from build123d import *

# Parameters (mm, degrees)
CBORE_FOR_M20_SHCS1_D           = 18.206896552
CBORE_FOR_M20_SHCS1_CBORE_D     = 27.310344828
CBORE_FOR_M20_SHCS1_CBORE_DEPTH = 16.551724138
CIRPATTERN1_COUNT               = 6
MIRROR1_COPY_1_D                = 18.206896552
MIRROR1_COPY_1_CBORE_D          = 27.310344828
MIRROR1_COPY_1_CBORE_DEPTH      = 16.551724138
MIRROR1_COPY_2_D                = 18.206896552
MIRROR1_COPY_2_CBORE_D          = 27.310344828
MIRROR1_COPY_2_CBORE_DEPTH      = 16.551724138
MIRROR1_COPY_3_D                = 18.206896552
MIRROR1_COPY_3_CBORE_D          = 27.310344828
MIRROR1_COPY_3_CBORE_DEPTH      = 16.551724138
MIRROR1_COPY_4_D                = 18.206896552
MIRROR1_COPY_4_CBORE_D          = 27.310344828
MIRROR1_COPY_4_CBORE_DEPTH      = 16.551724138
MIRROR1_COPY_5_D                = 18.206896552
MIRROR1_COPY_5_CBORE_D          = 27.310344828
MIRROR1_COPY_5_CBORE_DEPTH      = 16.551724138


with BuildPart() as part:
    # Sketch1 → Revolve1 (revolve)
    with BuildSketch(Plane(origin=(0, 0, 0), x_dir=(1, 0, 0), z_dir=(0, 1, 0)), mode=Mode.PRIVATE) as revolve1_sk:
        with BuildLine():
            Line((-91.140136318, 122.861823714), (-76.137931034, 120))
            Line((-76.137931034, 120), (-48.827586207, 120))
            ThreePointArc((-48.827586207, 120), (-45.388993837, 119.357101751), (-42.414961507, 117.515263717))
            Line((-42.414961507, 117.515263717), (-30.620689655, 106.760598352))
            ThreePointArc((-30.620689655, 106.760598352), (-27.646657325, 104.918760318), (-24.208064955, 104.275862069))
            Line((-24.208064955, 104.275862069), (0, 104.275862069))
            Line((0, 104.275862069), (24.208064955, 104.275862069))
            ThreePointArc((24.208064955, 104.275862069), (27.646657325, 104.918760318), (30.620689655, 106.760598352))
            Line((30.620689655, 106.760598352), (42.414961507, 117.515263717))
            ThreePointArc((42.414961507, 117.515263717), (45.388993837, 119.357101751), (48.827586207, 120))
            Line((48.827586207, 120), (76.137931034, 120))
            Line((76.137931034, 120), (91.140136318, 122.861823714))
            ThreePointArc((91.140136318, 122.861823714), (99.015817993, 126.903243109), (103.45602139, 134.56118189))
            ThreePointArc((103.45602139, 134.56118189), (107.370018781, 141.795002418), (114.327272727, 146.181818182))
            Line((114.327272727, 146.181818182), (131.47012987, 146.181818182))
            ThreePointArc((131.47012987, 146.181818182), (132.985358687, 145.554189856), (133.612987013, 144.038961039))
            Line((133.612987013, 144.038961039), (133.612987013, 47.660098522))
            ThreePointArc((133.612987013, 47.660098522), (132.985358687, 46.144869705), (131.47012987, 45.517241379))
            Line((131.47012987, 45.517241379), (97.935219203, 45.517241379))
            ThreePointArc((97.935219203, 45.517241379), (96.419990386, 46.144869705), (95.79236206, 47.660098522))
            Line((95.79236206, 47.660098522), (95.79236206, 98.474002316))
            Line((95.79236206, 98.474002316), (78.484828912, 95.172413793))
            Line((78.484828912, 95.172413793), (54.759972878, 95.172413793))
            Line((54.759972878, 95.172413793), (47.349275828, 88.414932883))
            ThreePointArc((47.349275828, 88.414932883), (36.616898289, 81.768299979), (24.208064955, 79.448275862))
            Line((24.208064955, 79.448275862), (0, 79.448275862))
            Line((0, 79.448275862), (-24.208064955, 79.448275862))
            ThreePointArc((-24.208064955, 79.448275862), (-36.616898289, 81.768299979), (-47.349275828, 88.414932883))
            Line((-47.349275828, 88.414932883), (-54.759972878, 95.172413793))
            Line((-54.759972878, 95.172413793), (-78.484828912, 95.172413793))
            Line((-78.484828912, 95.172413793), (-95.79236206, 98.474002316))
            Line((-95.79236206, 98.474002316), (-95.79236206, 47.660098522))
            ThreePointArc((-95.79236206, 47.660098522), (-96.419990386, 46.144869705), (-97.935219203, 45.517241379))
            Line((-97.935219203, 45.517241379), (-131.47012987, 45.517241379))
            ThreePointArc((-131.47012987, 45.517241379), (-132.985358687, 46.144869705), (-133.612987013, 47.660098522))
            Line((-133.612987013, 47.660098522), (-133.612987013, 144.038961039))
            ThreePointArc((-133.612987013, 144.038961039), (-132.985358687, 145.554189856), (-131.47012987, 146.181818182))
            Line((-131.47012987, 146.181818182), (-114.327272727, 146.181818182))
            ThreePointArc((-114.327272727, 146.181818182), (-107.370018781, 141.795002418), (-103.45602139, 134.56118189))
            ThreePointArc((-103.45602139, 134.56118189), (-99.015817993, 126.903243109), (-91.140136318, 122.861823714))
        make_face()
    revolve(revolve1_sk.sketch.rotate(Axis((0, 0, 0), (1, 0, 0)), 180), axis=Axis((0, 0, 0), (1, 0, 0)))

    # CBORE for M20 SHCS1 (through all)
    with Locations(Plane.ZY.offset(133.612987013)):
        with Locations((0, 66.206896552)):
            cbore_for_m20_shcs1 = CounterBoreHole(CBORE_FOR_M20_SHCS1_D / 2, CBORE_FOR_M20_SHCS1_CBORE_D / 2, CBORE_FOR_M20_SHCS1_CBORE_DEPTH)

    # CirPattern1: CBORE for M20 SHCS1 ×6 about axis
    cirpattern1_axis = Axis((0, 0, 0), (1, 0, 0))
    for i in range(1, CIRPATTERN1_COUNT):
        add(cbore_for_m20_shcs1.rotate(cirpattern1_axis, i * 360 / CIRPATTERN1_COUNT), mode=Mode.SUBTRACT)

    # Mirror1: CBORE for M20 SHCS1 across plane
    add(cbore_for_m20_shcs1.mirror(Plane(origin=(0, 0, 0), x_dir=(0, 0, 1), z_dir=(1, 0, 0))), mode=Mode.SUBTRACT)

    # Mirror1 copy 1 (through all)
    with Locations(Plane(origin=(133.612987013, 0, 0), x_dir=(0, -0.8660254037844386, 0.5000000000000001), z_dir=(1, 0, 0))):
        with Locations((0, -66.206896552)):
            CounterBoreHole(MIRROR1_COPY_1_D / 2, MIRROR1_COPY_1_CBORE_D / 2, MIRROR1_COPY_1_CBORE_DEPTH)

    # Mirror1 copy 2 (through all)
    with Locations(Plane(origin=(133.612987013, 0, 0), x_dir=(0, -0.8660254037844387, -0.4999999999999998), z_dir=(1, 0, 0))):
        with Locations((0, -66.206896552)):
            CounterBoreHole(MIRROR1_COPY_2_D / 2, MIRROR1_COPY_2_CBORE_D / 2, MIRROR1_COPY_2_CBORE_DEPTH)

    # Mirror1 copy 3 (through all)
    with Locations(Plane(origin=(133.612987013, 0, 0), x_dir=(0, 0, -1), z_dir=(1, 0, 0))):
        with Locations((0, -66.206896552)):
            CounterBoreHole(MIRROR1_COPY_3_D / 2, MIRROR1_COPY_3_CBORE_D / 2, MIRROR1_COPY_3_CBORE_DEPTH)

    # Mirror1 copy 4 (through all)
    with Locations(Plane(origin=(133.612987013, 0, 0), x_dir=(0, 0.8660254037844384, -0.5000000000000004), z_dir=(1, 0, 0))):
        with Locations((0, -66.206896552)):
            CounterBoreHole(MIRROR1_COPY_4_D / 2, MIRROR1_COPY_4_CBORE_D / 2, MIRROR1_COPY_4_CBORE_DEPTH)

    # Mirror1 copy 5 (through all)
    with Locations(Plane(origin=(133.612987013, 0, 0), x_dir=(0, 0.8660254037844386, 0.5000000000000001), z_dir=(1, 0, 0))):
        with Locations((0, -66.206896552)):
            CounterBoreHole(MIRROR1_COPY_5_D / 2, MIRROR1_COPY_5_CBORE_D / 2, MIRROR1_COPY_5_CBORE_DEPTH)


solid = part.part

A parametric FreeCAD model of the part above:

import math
import FreeCAD as App
import Part
import Sketcher

V = App.Vector
Q = App.Units.Quantity

doc = App.newDocument("Part")
body = doc.addObject("PartDesign::Body", "Body")

# Sketch on XZ plane
sketch1 = body.newObject("Sketcher::SketchObject", "Sketch")
sketch1.AttachmentSupport = (doc.getObject("XZ_Plane"), [""])
sketch1.MapMode = "FlatFace"
sketch1.addGeometry(Part.LineSegment(V(-76.1, -120, 0), V(-91.1, -122.9, 0)), False)
sketch1.addGeometry(Part.ArcOfCircle(Part.Circle(V(-88.2, -138.3, 0), V(0, 0, 1), 15.7), math.radians(101), math.radians(166)), False)
sketch1.addGeometry(Part.ArcOfCircle(Part.Circle(V(-119.2, -130.7, 0), V(0, 0, 1), 16.2), math.radians(-72), math.radians(-14)), False)
sketch1.addGeometry(Part.LineSegment(V(-114.3, -146.2, 0), V(-131.5, -146.2, 0)), False)
sketch1.addGeometry(Part.ArcOfCircle(Part.Circle(V(-131.5, -144, 0), V(0, 0, 1), 2.1), math.radians(180), math.radians(270)), False)
sketch1.addGeometry(Part.LineSegment(V(-133.6, -144, 0), V(-133.6, -47.7, 0)), False)
sketch1.addGeometry(Part.ArcOfCircle(Part.Circle(V(-131.5, -47.7, 0), V(0, 0, 1), 2.1), math.radians(90), math.radians(180)), False)
sketch1.addGeometry(Part.LineSegment(V(-131.5, -45.5, 0), V(-97.9, -45.5, 0)), False)
sketch1.addGeometry(Part.ArcOfCircle(Part.Circle(V(-97.9, -47.7, 0), V(0, 0, 1), 2.1), math.radians(0), math.radians(90)), False)
sketch1.addGeometry(Part.LineSegment(V(-95.8, -47.7, 0), V(-95.8, -98.5, 0)), False)
sketch1.addGeometry(Part.LineSegment(V(-95.8, -98.5, 0), V(-78.5, -95.2, 0)), False)
sketch1.addGeometry(Part.LineSegment(V(-78.5, -95.2, 0), V(-54.8, -95.2, 0)), False)
sketch1.addGeometry(Part.LineSegment(V(-54.8, -95.2, 0), V(-47.3, -88.4, 0)), False)
sketch1.addGeometry(Part.ArcOfCircle(Part.Circle(V(-24.2, -113.8, 0), V(0, 0, 1), 34.3), math.radians(90), math.radians(132)), False)
sketch1.addGeometry(Part.LineSegment(V(-24.2, -79.4, 0), V(24.2, -79.4, 0)), False)
sketch1.addGeometry(Part.ArcOfCircle(Part.Circle(V(24.2, -113.8, 0), V(0, 0, 1), 34.3), math.radians(48), math.radians(90)), False)
sketch1.addGeometry(Part.LineSegment(V(47.3, -88.4, 0), V(54.8, -95.2, 0)), False)
sketch1.addGeometry(Part.LineSegment(V(54.8, -95.2, 0), V(78.5, -95.2, 0)), False)
sketch1.addGeometry(Part.LineSegment(V(78.5, -95.2, 0), V(95.8, -98.5, 0)), False)
sketch1.addGeometry(Part.LineSegment(V(95.8, -98.5, 0), V(95.8, -47.7, 0)), False)
sketch1.addGeometry(Part.ArcOfCircle(Part.Circle(V(97.9, -47.7, 0), V(0, 0, 1), 2.1), math.radians(90), math.radians(180)), False)
sketch1.addGeometry(Part.LineSegment(V(97.9, -45.5, 0), V(131.5, -45.5, 0)), False)
sketch1.addGeometry(Part.ArcOfCircle(Part.Circle(V(131.5, -47.7, 0), V(0, 0, 1), 2.1), math.radians(0), math.radians(90)), False)
sketch1.addGeometry(Part.LineSegment(V(133.6, -47.7, 0), V(133.6, -144, 0)), False)
sketch1.addGeometry(Part.ArcOfCircle(Part.Circle(V(131.5, -144, 0), V(0, 0, 1), 2.1), math.radians(-90), math.radians(0)), False)
sketch1.addGeometry(Part.LineSegment(V(131.5, -146.2, 0), V(114.3, -146.2, 0)), False)
sketch1.addGeometry(Part.ArcOfCircle(Part.Circle(V(119.2, -130.7, 0), V(0, 0, 1), 16.2), math.radians(-166), math.radians(-108)), False)
sketch1.addGeometry(Part.ArcOfCircle(Part.Circle(V(88.2, -138.3, 0), V(0, 0, 1), 15.7), math.radians(14), math.radians(79)), False)
sketch1.addGeometry(Part.LineSegment(V(91.1, -122.9, 0), V(76.1, -120, 0)), False)
sketch1.addGeometry(Part.LineSegment(V(76.1, -120, 0), V(48.8, -120, 0)), False)
sketch1.addGeometry(Part.ArcOfCircle(Part.Circle(V(48.8, -110.5, 0), V(0, 0, 1), 9.5), math.radians(-132), math.radians(-90)), False)
sketch1.addGeometry(Part.LineSegment(V(42.4, -117.5, 0), V(30.6, -106.8, 0)), False)
sketch1.addGeometry(Part.ArcOfCircle(Part.Circle(V(24.2, -113.8, 0), V(0, 0, 1), 9.5), math.radians(48), math.radians(90)), False)
sketch1.addGeometry(Part.LineSegment(V(24.2, -104.3, 0), V(-24.2, -104.3, 0)), False)
sketch1.addGeometry(Part.ArcOfCircle(Part.Circle(V(-24.2, -113.8, 0), V(0, 0, 1), 9.5), math.radians(90), math.radians(132)), False)
sketch1.addGeometry(Part.LineSegment(V(-30.6, -106.8, 0), V(-42.4, -117.5, 0)), False)
sketch1.addGeometry(Part.ArcOfCircle(Part.Circle(V(-48.8, -110.5, 0), V(0, 0, 1), 9.5), math.radians(-90), math.radians(-48)), False)
sketch1.addGeometry(Part.LineSegment(V(-48.8, -120, 0), V(-76.1, -120, 0)), False)
sketch1.addConstraint(Sketcher.Constraint("Tangent", 0, 2, 1, 1))
sketch1.addConstraint(Sketcher.Constraint("Tangent", 1, 2, 2, 2))
sketch1.addConstraint(Sketcher.Constraint("Coincident", 2, 1, 3, 1))
sketch1.addConstraint(Sketcher.Constraint("Tangent", 3, 2, 4, 2))
sketch1.addConstraint(Sketcher.Constraint("Tangent", 4, 1, 5, 1))
sketch1.addConstraint(Sketcher.Constraint("Tangent", 5, 2, 6, 2))
sketch1.addConstraint(Sketcher.Constraint("Tangent", 6, 1, 7, 1))
sketch1.addConstraint(Sketcher.Constraint("Tangent", 7, 2, 8, 2))
sketch1.addConstraint(Sketcher.Constraint("Tangent", 8, 1, 9, 1))
sketch1.addConstraint(Sketcher.Constraint("Coincident", 9, 2, 10, 1))
sketch1.addConstraint(Sketcher.Constraint("Coincident", 10, 2, 11, 1))
sketch1.addConstraint(Sketcher.Constraint("Coincident", 11, 2, 12, 1))
sketch1.addConstraint(Sketcher.Constraint("Tangent", 12, 2, 13, 2))
sketch1.addConstraint(Sketcher.Constraint("Tangent", 13, 1, 14, 1))
sketch1.addConstraint(Sketcher.Constraint("Tangent", 14, 2, 15, 2))
sketch1.addConstraint(Sketcher.Constraint("Tangent", 15, 1, 16, 1))
sketch1.addConstraint(Sketcher.Constraint("Coincident", 16, 2, 17, 1))
sketch1.addConstraint(Sketcher.Constraint("Coincident", 17, 2, 18, 1))
sketch1.addConstraint(Sketcher.Constraint("Coincident", 18, 2, 19, 1))
sketch1.addConstraint(Sketcher.Constraint("Tangent", 19, 2, 20, 2))
sketch1.addConstraint(Sketcher.Constraint("Tangent", 20, 1, 21, 1))
sketch1.addConstraint(Sketcher.Constraint("Tangent", 21, 2, 22, 2))
sketch1.addConstraint(Sketcher.Constraint("Tangent", 22, 1, 23, 1))
sketch1.addConstraint(Sketcher.Constraint("Tangent", 23, 2, 24, 2))
sketch1.addConstraint(Sketcher.Constraint("Tangent", 24, 1, 25, 1))
sketch1.addConstraint(Sketcher.Constraint("Coincident", 25, 2, 26, 2))
sketch1.addConstraint(Sketcher.Constraint("Tangent", 26, 1, 27, 1))
sketch1.addConstraint(Sketcher.Constraint("Tangent", 27, 2, 28, 1))
sketch1.addConstraint(Sketcher.Constraint("Coincident", 28, 2, 29, 1))
sketch1.addConstraint(Sketcher.Constraint("Tangent", 29, 2, 30, 2))
sketch1.addConstraint(Sketcher.Constraint("Tangent", 30, 1, 31, 1))
sketch1.addConstraint(Sketcher.Constraint("Tangent", 31, 2, 32, 1))
sketch1.addConstraint(Sketcher.Constraint("Tangent", 32, 2, 33, 1))
sketch1.addConstraint(Sketcher.Constraint("Tangent", 33, 2, 34, 1))
sketch1.addConstraint(Sketcher.Constraint("Tangent", 34, 2, 35, 1))
sketch1.addConstraint(Sketcher.Constraint("Tangent", 35, 2, 36, 2))
sketch1.addConstraint(Sketcher.Constraint("Tangent", 36, 1, 37, 1))
sketch1.addConstraint(Sketcher.Constraint("Coincident", 37, 2, 0, 1))
sketch1.addConstraint(Sketcher.Constraint("Horizontal", 3))
sketch1.addConstraint(Sketcher.Constraint("Vertical", 5))
sketch1.addConstraint(Sketcher.Constraint("Horizontal", 7))
sketch1.addConstraint(Sketcher.Constraint("Vertical", 9))
sketch1.addConstraint(Sketcher.Constraint("Horizontal", 11))
sketch1.addConstraint(Sketcher.Constraint("Horizontal", 14))
sketch1.addConstraint(Sketcher.Constraint("Horizontal", 17))
sketch1.addConstraint(Sketcher.Constraint("Vertical", 19))
sketch1.addConstraint(Sketcher.Constraint("Horizontal", 21))
sketch1.addConstraint(Sketcher.Constraint("Vertical", 23))
sketch1.addConstraint(Sketcher.Constraint("Horizontal", 25))
sketch1.addConstraint(Sketcher.Constraint("Horizontal", 29))
sketch1.addConstraint(Sketcher.Constraint("Horizontal", 33))
sketch1.addConstraint(Sketcher.Constraint("Horizontal", 37))
sketch1.addConstraint(Sketcher.Constraint("Coincident", 32, 3, 15, 3))
sketch1.addConstraint(Sketcher.Constraint("Coincident", 34, 3, 13, 3))
sketch1.addConstraint(Sketcher.Constraint("Equal", 4, 6))
sketch1.addConstraint(Sketcher.Constraint("Equal", 6, 8))
sketch1.addConstraint(Sketcher.Constraint("Equal", 13, 15))
sketch1.addConstraint(Sketcher.Constraint("Equal", 8, 20))
sketch1.addConstraint(Sketcher.Constraint("Equal", 20, 22))
sketch1.addConstraint(Sketcher.Constraint("Equal", 22, 24))
sketch1.addConstraint(Sketcher.Constraint("Equal", 2, 26))
sketch1.addConstraint(Sketcher.Constraint("Equal", 1, 27))
sketch1.addConstraint(Sketcher.Constraint("Equal", 30, 32))
sketch1.addConstraint(Sketcher.Constraint("Equal", 34, 36))
sketch1.addConstraint(Sketcher.Constraint("Symmetric", 8, 3, 20, 3, -2))
sketch1.addConstraint(Sketcher.Constraint("Symmetric", 4, 3, 24, 3, -2))
sketch1.addConstraint(Sketcher.Constraint("Symmetric", 2, 3, 26, 3, -2))
sketch1.addConstraint(Sketcher.Constraint("Symmetric", 30, 3, 36, 3, -2))
sketch1.addConstraint(Sketcher.Constraint("Symmetric", 12, 2, 15, 1, -2))
sketch1.addConstraint(Sketcher.Constraint("Symmetric", 10, 2, 17, 2, -2))
sketch1.addConstraint(Sketcher.Constraint("Symmetric", 0, 2, 27, 2, -2))
sketch1.addConstraint(Sketcher.Constraint("Parallel", 0, 10))
sketch1.addConstraint(Sketcher.Constraint("Parallel", 18, 28))
sketch1.addConstraint(Sketcher.Constraint("Parallel", 16, 31))
sketch1.addConstraint(Sketcher.Constraint("DistanceY", 28, 2, -1, 1, 120.0))
sketch1.addConstraint(Sketcher.Constraint("Angle", 0, Q("-169.2 deg")))
sketch1.addConstraint(Sketcher.Constraint("Radius", 1, 15.709091))
sketch1.addConstraint(Sketcher.Constraint("Radius", 30, 9.517241))
sketch1.addConstraint(Sketcher.Constraint("Radius", 2, 16.232727))
sketch1.addConstraint(Sketcher.Constraint("Radius", 4, 2.142857))
sketch1.addConstraint(Sketcher.Constraint("Radius", 13, 34.344828))
sketch1.addConstraint(Sketcher.Constraint("DistanceX", 7, 1, 7, 2, 33.534911))
sketch1.addConstraint(Sketcher.Constraint("DistanceX", 14, 1, 14, 2, 48.41613))
sketch1.addConstraint(Sketcher.Constraint("DistanceY", 6, 3, -1, 1, 47.660099))
sketch1.addConstraint(Sketcher.Constraint("DistanceY", 31, 2, -1, 1, 106.760598))
sketch1.addConstraint(Sketcher.Constraint("DistanceX", 2, 3, 1, 3, 31.0276))
sketch1.addConstraint(Sketcher.Constraint("DistanceY", 2, 1, 2, 3, 15.476501))
sketch1.addConstraint(Sketcher.Constraint("DistanceX", 3, 2, 3, 1, 17.142857))
sketch1.addConstraint(Sketcher.Constraint("DistanceX", 11, 1, 11, 2, 23.724856))
sketch1.addConstraint(Sketcher.Constraint("DistanceX", 29, 2, 29, 1, 27.310345))
sketch1.addConstraint(Sketcher.Constraint("DistanceY", 5, 1, 5, 2, 96.378863))
sketch1.addConstraint(Sketcher.Constraint("DistanceY", 9, 2, 9, 1, 50.813904))
sketch1.addConstraint(Sketcher.Constraint("DistanceX", 4, 3, -1, 1, 131.47013))
revolution = body.newObject("PartDesign::Revolution", "Revolution")
revolution.Profile = sketch1
revolution.ReferenceAxis = (sketch1, ["H_Axis"])
revolution.Angle = 360

# Sketch on YZ plane
sketch2 = body.newObject("Sketcher::SketchObject", "Sketch001")
sketch2.AttachmentSupport = (doc.getObject("YZ_Plane"), [""])
sketch2.MapMode = "FlatFace"
sketch2.AttachmentOffset = App.Placement(V(0, 0, -133.612987), App.Rotation())
sketch2.addGeometry(Part.Circle(V(66, 0, 0), V(0, 0, 1), 9), False)
sketch2.addConstraint(Sketcher.Constraint("PointOnObject", 0, 3, -1))
sketch2.addConstraint(Sketcher.Constraint("Diameter", 0, 18.206897))
sketch2.addConstraint(Sketcher.Constraint("DistanceX", -1, 1, 0, 3, 66.206897))
doc.recompute()
hole = body.newObject("PartDesign::Hole", "Hole")
hole.Profile = sketch2
hole.ThreadType = "None"
hole.Diameter = 18.206897
hole.DepthType = "ThroughAll"
hole.HoleCutType = "Counterbore"
hole.HoleCutDiameter = 27.310345
hole.HoleCutDepth = 16.551724
hole.Reversed = True
doc.recompute()

polarpattern = body.newObject("PartDesign::PolarPattern", "PolarPattern")
polarpattern.Originals = [hole]
polarpattern.Axis = (doc.getObject("X_Axis"), [""])
polarpattern.Angle = 360
polarpattern.Occurrences = 6
body.Tip = polarpattern
doc.recompute()

mirrored = body.newObject("PartDesign::Mirrored", "Mirrored")
mirrored.Originals = [hole]
mirrored.MirrorPlane = (doc.getObject("YZ_Plane"), [""])
body.Tip = mirrored

# Sketch on YZ plane
sketch3 = body.newObject("Sketcher::SketchObject", "Sketch002")
sketch3.AttachmentSupport = (doc.getObject("YZ_Plane"), [""])
sketch3.MapMode = "FlatFace"
sketch3.AttachmentOffset = App.Placement(V(0, 0, 133.612987), App.Rotation())
sketch3.addGeometry(Part.Circle(V(33, 57, 0), V(0, 0, 1), 9), False)
sketch3.addConstraint(Sketcher.Constraint("Diameter", 0, 18.206897))
sketch3.addConstraint(Sketcher.Constraint("DistanceX", -1, 1, 0, 3, 33.103448))
sketch3.addConstraint(Sketcher.Constraint("DistanceY", -1, 1, 0, 3, 57.336854))
doc.recompute()
hole2 = body.newObject("PartDesign::Hole", "Hole001")
hole2.Profile = sketch3
hole2.ThreadType = "None"
hole2.Diameter = 18.206897
hole2.DepthType = "ThroughAll"
hole2.HoleCutType = "Counterbore"
hole2.HoleCutDiameter = 27.310345
hole2.HoleCutDepth = 16.551724

# Sketch on YZ plane
sketch4 = body.newObject("Sketcher::SketchObject", "Sketch003")
sketch4.AttachmentSupport = (doc.getObject("YZ_Plane"), [""])
sketch4.MapMode = "FlatFace"
sketch4.AttachmentOffset = App.Placement(V(0, 0, 133.612987), App.Rotation())
sketch4.addGeometry(Part.Circle(V(-33, 57, 0), V(0, 0, 1), 9), False)
sketch4.addConstraint(Sketcher.Constraint("Diameter", 0, 18.206897))
sketch4.addConstraint(Sketcher.Constraint("DistanceX", 0, 3, -1, 1, 33.103448))
sketch4.addConstraint(Sketcher.Constraint("DistanceY", -1, 1, 0, 3, 57.336854))
doc.recompute()
hole3 = body.newObject("PartDesign::Hole", "Hole002")
hole3.Profile = sketch4
hole3.ThreadType = "None"
hole3.Diameter = 18.206897
hole3.DepthType = "ThroughAll"
hole3.HoleCutType = "Counterbore"
hole3.HoleCutDiameter = 27.310345
hole3.HoleCutDepth = 16.551724

# Sketch on YZ plane
sketch5 = body.newObject("Sketcher::SketchObject", "Sketch004")
sketch5.AttachmentSupport = (doc.getObject("YZ_Plane"), [""])
sketch5.MapMode = "FlatFace"
sketch5.AttachmentOffset = App.Placement(V(0, 0, 133.612987), App.Rotation())
sketch5.addGeometry(Part.Circle(V(-66, 0, 0), V(0, 0, 1), 9), False)
sketch5.addConstraint(Sketcher.Constraint("PointOnObject", 0, 3, -1))
sketch5.addConstraint(Sketcher.Constraint("Diameter", 0, 18.206897))
sketch5.addConstraint(Sketcher.Constraint("DistanceX", 0, 3, -1, 1, 66.206897))
doc.recompute()
hole4 = body.newObject("PartDesign::Hole", "Hole003")
hole4.Profile = sketch5
hole4.ThreadType = "None"
hole4.Diameter = 18.206897
hole4.DepthType = "ThroughAll"
hole4.HoleCutType = "Counterbore"
hole4.HoleCutDiameter = 27.310345
hole4.HoleCutDepth = 16.551724

# Sketch on YZ plane
sketch6 = body.newObject("Sketcher::SketchObject", "Sketch005")
sketch6.AttachmentSupport = (doc.getObject("YZ_Plane"), [""])
sketch6.MapMode = "FlatFace"
sketch6.AttachmentOffset = App.Placement(V(0, 0, 133.612987), App.Rotation())
sketch6.addGeometry(Part.Circle(V(-33, -57, 0), V(0, 0, 1), 9), False)
sketch6.addConstraint(Sketcher.Constraint("Diameter", 0, 18.206897))
sketch6.addConstraint(Sketcher.Constraint("DistanceX", 0, 3, -1, 1, 33.103448))
sketch6.addConstraint(Sketcher.Constraint("DistanceY", 0, 3, -1, 1, 57.336854))
doc.recompute()
hole5 = body.newObject("PartDesign::Hole", "Hole004")
hole5.Profile = sketch6
hole5.ThreadType = "None"
hole5.Diameter = 18.206897
hole5.DepthType = "ThroughAll"
hole5.HoleCutType = "Counterbore"
hole5.HoleCutDiameter = 27.310345
hole5.HoleCutDepth = 16.551724

# Sketch on YZ plane
sketch7 = body.newObject("Sketcher::SketchObject", "Sketch006")
sketch7.AttachmentSupport = (doc.getObject("YZ_Plane"), [""])
sketch7.MapMode = "FlatFace"
sketch7.AttachmentOffset = App.Placement(V(0, 0, 133.612987), App.Rotation())
sketch7.addGeometry(Part.Circle(V(33, -57, 0), V(0, 0, 1), 9), False)
sketch7.addConstraint(Sketcher.Constraint("Diameter", 0, 18.206897))
sketch7.addConstraint(Sketcher.Constraint("DistanceX", -1, 1, 0, 3, 33.103448))
sketch7.addConstraint(Sketcher.Constraint("DistanceY", 0, 3, -1, 1, 57.336854))
doc.recompute()
hole6 = body.newObject("PartDesign::Hole", "Hole005")
hole6.Profile = sketch7
hole6.ThreadType = "None"
hole6.Diameter = 18.206897
hole6.DepthType = "ThroughAll"
hole6.HoleCutType = "Counterbore"
hole6.HoleCutDiameter = 27.310345
hole6.HoleCutDepth = 16.551724

doc.recompute()
